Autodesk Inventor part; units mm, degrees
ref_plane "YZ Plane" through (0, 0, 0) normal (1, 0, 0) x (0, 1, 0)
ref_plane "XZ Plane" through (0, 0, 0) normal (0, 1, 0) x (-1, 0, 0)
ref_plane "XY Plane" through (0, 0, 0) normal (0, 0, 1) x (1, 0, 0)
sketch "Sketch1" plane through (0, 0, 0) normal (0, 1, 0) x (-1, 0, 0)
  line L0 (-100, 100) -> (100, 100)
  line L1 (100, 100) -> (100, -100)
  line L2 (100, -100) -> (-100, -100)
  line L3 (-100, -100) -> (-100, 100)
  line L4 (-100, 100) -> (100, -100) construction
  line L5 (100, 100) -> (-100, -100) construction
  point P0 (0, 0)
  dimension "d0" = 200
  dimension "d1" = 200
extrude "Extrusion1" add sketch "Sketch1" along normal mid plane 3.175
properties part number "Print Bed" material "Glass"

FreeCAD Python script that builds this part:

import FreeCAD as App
import Part
import Sketcher
from FreeCAD import Vector
Q = App.Units.Quantity

doc = App.newDocument("Part")
params = doc.addObject("Spreadsheet::Sheet", "Params")
for row, (alias, value) in enumerate([
    ("sketch1_width", "200 mm"),
    ("pad1_length", "3.175 mm"),
], start=1):
    params.set(f"A{row}", alias)
    params.set(f"B{row}", "=" + value)
    params.setAlias(f"B{row}", alias)

body = doc.addObject("PartDesign::Body", "Body")

sketch1 = body.newObject("Sketcher::SketchObject", "Sketch")
sketch1.AttachmentSupport = (doc.getObject("XZ_Plane"), [""])
sketch1.MapMode = "FlatFace"
sketch1.addGeometry(Part.LineSegment(Vector(-100, 100, 0), Vector(100, 100, 0)), False)
sketch1.addGeometry(Part.LineSegment(Vector(100, 100, 0), Vector(100, -100, 0)), False)
sketch1.addGeometry(Part.LineSegment(Vector(100, -100, 0), Vector(-100, -100, 0)), False)
sketch1.addGeometry(Part.LineSegment(Vector(-100, -100, 0), Vector(-100, 100, 0)), False)
sketch1.addConstraint(Sketcher.Constraint("Coincident", 0, 2, 1, 1))
sketch1.addConstraint(Sketcher.Constraint("Coincident", 1, 2, 2, 1))
sketch1.addConstraint(Sketcher.Constraint("Coincident", 2, 2, 3, 1))
sketch1.addConstraint(Sketcher.Constraint("Coincident", 3, 2, 0, 1))
sketch1.addConstraint(Sketcher.Constraint("Horizontal", 0))
sketch1.addConstraint(Sketcher.Constraint("Vertical", 1))
sketch1.addConstraint(Sketcher.Constraint("Horizontal", 2))
sketch1.addConstraint(Sketcher.Constraint("Vertical", 3))
sketch1.addConstraint(Sketcher.Constraint("Symmetric", 0, 2, 2, 2, -1, 1))
sketch1.addConstraint(Sketcher.Constraint("Equal", 2, 1))
sketch1.addConstraint(Sketcher.Constraint("DistanceX", 0, 1, 0, 2, Q("200 mm")))
sketch1.setExpression("Constraints[10]", "Params.sketch1_width")
pad1 = body.newObject("PartDesign::Pad", "Pad")
pad1.Profile = sketch1
pad1.setExpression("Length", "Params.pad1_length")
pad1.Midplane = True

doc.recompute()
